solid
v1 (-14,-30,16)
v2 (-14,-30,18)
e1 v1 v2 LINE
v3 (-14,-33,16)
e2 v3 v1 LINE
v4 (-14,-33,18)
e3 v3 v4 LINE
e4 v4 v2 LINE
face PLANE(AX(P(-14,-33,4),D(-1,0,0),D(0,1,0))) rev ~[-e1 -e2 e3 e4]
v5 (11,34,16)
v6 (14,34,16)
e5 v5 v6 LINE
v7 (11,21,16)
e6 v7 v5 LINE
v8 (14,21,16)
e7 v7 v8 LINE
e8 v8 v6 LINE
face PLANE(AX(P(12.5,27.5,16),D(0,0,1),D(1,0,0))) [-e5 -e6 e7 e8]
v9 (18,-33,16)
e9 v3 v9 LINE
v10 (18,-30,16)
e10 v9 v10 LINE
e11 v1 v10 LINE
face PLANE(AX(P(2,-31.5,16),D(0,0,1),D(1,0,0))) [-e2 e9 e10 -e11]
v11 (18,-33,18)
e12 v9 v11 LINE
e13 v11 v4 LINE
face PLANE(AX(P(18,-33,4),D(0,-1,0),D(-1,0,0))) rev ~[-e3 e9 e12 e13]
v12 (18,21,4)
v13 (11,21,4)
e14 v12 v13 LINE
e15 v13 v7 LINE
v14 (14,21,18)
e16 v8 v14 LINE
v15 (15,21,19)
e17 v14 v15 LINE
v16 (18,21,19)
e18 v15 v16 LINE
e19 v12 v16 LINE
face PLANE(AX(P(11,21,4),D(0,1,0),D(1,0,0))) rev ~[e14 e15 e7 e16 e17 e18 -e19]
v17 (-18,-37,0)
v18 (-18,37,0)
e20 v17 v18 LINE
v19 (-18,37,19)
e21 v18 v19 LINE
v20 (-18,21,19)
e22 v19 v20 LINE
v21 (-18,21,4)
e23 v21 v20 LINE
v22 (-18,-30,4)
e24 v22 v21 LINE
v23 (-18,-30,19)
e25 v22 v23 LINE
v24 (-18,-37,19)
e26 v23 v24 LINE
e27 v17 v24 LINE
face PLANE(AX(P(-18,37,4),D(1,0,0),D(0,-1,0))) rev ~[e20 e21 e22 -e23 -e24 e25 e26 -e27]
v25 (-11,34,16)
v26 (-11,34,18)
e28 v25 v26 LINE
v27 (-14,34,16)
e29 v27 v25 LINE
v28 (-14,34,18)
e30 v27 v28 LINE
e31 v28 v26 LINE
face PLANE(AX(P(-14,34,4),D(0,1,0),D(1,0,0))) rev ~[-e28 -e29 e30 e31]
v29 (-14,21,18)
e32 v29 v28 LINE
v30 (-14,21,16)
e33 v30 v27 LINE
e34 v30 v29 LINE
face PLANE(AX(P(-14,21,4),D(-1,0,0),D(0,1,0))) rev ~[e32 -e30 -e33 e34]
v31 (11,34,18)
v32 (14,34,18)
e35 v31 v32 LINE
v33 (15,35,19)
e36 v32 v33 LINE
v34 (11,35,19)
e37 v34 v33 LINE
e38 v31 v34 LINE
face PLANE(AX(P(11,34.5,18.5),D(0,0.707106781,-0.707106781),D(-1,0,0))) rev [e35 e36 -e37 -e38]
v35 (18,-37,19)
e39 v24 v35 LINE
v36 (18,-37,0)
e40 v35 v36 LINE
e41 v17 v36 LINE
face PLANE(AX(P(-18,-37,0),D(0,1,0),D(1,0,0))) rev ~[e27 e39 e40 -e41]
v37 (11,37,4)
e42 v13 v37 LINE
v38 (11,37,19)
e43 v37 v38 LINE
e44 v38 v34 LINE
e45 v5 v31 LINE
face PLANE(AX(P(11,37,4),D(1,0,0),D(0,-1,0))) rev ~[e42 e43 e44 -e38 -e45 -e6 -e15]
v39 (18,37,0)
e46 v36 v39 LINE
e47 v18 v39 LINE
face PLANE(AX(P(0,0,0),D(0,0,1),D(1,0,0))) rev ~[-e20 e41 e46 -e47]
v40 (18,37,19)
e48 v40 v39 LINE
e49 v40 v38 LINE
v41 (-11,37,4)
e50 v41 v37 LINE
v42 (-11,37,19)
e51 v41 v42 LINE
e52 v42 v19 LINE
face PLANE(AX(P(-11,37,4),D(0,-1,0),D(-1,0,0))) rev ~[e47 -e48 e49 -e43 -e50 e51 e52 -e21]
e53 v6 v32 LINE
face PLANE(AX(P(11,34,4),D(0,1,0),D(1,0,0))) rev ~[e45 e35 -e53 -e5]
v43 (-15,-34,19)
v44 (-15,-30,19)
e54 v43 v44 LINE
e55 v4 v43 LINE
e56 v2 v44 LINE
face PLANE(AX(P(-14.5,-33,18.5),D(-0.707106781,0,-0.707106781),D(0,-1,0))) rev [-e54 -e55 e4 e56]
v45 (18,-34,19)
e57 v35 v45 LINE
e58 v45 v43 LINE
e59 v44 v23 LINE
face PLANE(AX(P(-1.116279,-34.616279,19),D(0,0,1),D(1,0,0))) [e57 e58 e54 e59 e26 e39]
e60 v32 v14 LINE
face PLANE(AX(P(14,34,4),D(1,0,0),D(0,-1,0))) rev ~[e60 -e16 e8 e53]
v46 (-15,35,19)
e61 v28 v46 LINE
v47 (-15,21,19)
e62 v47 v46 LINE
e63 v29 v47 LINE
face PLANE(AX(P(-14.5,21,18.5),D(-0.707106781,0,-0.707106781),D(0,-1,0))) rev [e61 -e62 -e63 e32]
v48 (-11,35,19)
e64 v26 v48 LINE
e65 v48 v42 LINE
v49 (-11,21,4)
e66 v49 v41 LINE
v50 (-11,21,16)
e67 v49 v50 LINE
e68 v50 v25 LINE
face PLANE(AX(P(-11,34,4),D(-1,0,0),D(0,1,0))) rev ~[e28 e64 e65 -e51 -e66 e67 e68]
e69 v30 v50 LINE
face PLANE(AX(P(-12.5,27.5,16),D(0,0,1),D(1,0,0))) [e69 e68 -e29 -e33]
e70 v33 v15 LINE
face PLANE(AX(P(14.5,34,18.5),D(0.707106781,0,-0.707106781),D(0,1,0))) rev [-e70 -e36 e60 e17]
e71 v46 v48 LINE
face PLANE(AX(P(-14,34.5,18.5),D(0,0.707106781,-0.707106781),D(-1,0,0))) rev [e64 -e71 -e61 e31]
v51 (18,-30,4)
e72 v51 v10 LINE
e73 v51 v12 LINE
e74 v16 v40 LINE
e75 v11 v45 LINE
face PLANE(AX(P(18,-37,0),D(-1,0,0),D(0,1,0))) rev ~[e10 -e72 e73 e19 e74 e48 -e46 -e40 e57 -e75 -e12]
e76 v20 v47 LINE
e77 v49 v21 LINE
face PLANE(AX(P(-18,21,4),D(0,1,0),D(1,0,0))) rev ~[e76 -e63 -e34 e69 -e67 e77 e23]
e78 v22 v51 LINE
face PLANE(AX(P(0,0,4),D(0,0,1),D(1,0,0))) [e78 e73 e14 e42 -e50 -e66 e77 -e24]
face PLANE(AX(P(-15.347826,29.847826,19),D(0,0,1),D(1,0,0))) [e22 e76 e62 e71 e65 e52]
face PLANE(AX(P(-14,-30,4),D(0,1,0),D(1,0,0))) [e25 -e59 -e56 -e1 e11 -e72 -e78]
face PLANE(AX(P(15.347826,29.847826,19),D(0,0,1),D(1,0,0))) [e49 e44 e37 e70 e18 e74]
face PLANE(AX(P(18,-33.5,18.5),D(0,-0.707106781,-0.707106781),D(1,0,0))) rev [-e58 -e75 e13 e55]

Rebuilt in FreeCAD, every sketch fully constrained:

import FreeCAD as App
import Part
import Sketcher

V = App.Vector
Q = App.Units.Quantity


def edges_at(feature, points):
    """Names of the edges that pass closest to the given points."""
    edges = feature.Shape.Edges
    near = lambda p: min(range(len(edges)), key=lambda i: edges[i].distToShape(Part.Vertex(*p))[0])
    return sorted({f"Edge{near(p) + 1}" for p in points})

doc = App.newDocument("Part")
params = doc.addObject("Spreadsheet::Sheet", "Params")
for row, (alias, value) in enumerate([
    ("sketch1_width", "36 mm"),
    ("sketch1_height", "74 mm"),
    ("pad1_length", "4 mm"),
    ("sketch2_width", "3 mm"),
    ("sketch2_width2", "32 mm"),
    ("sketch2_height", "13 mm"),
    ("pad2_length", "12 mm"),
    ("sketch3_width", "7 mm"),
    ("sketch3_width2", "4 mm"),
    ("sketch3_width3", "36 mm"),
    ("sketch3_height", "16 mm"),
    ("pad3_length", "15 mm"),
    ("chamfer_size", "1 mm"),
], start=1):
    params.set(f"A{row}", alias)
    params.set(f"B{row}", "=" + value)
    params.setAlias(f"B{row}", alias)

body = doc.addObject("PartDesign::Body", "Body")

# Sketch on XY plane
sketch1 = body.newObject("Sketcher::SketchObject", "Sketch")
sketch1.AttachmentSupport = (doc.getObject("XY_Plane"), [""])
sketch1.MapMode = "FlatFace"
sketch1.addGeometry(Part.LineSegment(V(-18, 37, 0), V(-18, -37, 0)), False)
sketch1.addGeometry(Part.LineSegment(V(-18, -37, 0), V(18, -37, 0)), False)
sketch1.addGeometry(Part.LineSegment(V(18, -37, 0), V(18, 37, 0)), False)
sketch1.addGeometry(Part.LineSegment(V(18, 37, 0), V(-18, 37, 0)), False)
sketch1.addConstraint(Sketcher.Constraint("Coincident", 0, 2, 1, 1))
sketch1.addConstraint(Sketcher.Constraint("Coincident", 1, 2, 2, 1))
sketch1.addConstraint(Sketcher.Constraint("Coincident", 2, 2, 3, 1))
sketch1.addConstraint(Sketcher.Constraint("Coincident", 3, 2, 0, 1))
sketch1.addConstraint(Sketcher.Constraint("Vertical", 0))
sketch1.addConstraint(Sketcher.Constraint("Horizontal", 1))
sketch1.addConstraint(Sketcher.Constraint("Vertical", 2))
sketch1.addConstraint(Sketcher.Constraint("Horizontal", 3))
sketch1.addConstraint(Sketcher.Constraint("Symmetric", 0, 2, 2, 2, -1, 1))
sketch1.addConstraint(Sketcher.Constraint("DistanceX", 1, 1, 1, 2, Q("36 mm")))
sketch1.addConstraint(Sketcher.Constraint("DistanceY", 0, 2, 0, 1, Q("74 mm")))
sketch1.setExpression("Constraints[9]", "Params.sketch1_width")
sketch1.setExpression("Constraints[10]", "Params.sketch1_height")
pad1 = body.newObject("PartDesign::Pad", "Pad")
pad1.Profile = sketch1
pad1.setExpression("Length", "Params.pad1_length")

# Sketch on XY plane
sketch2 = body.newObject("Sketcher::SketchObject", "Sketch001")
sketch2.AttachmentSupport = (doc.getObject("XY_Plane"), [""])
sketch2.MapMode = "FlatFace"
sketch2.AttachmentOffset = App.Placement(V(0, 0, 4), App.Rotation())
sketch2.addGeometry(Part.LineSegment(V(-14, 34, 0), V(-14, 21, 0)), False)
sketch2.addGeometry(Part.LineSegment(V(-14, 21, 0), V(-11, 21, 0)), False)
sketch2.addGeometry(Part.LineSegment(V(-11, 21, 0), V(-11, 34, 0)), False)
sketch2.addGeometry(Part.LineSegment(V(-11, 34, 0), V(-14, 34, 0)), False)
sketch2.addGeometry(Part.LineSegment(V(11, 34, 0), V(11, 21, 0)), False)
sketch2.addGeometry(Part.LineSegment(V(11, 21, 0), V(14, 21, 0)), False)
sketch2.addGeometry(Part.LineSegment(V(14, 21, 0), V(14, 34, 0)), False)
sketch2.addGeometry(Part.LineSegment(V(14, 34, 0), V(11, 34, 0)), False)
sketch2.addGeometry(Part.LineSegment(V(-14, -30, 0), V(-14, -33, 0)), False)
sketch2.addGeometry(Part.LineSegment(V(-14, -33, 0), V(18, -33, 0)), False)
sketch2.addGeometry(Part.LineSegment(V(18, -33, 0), V(18, -30, 0)), False)
sketch2.addGeometry(Part.LineSegment(V(18, -30, 0), V(-14, -30, 0)), False)
sketch2.addConstraint(Sketcher.Constraint("Coincident", 0, 2, 1, 1))
sketch2.addConstraint(Sketcher.Constraint("Coincident", 1, 2, 2, 1))
sketch2.addConstraint(Sketcher.Constraint("Coincident", 2, 2, 3, 1))
sketch2.addConstraint(Sketcher.Constraint("Coincident", 3, 2, 0, 1))
sketch2.addConstraint(Sketcher.Constraint("Coincident", 4, 2, 5, 1))
sketch2.addConstraint(Sketcher.Constraint("Coincident", 5, 2, 6, 1))
sketch2.addConstraint(Sketcher.Constraint("Coincident", 6, 2, 7, 1))
sketch2.addConstraint(Sketcher.Constraint("Coincident", 7, 2, 4, 1))
sketch2.addConstraint(Sketcher.Constraint("Coincident", 8, 2, 9, 1))
sketch2.addConstraint(Sketcher.Constraint("Coincident", 9, 2, 10, 1))
sketch2.addConstraint(Sketcher.Constraint("Coincident", 10, 2, 11, 1))
sketch2.addConstraint(Sketcher.Constraint("Coincident", 11, 2, 8, 1))
sketch2.addConstraint(Sketcher.Constraint("Vertical", 0))
sketch2.addConstraint(Sketcher.Constraint("Horizontal", 1))
sketch2.addConstraint(Sketcher.Constraint("Vertical", 2))
sketch2.addConstraint(Sketcher.Constraint("Horizontal", 3))
sketch2.addConstraint(Sketcher.Constraint("Vertical", 4))
sketch2.addConstraint(Sketcher.Constraint("Horizontal", 5))
sketch2.addConstraint(Sketcher.Constraint("Vertical", 6))
sketch2.addConstraint(Sketcher.Constraint("Horizontal", 7))
sketch2.addConstraint(Sketcher.Constraint("Vertical", 8))
sketch2.addConstraint(Sketcher.Constraint("Horizontal", 9))
sketch2.addConstraint(Sketcher.Constraint("Vertical", 10))
sketch2.addConstraint(Sketcher.Constraint("Horizontal", 11))
sketch2.addConstraint(Sketcher.Constraint("Symmetric", 1, 2, 4, 2, -2))
sketch2.addConstraint(Sketcher.Constraint("Symmetric", 3, 2, 6, 2, -2))
sketch2.addConstraint(Sketcher.Constraint("Vertical", 3, 2, 8, 2))
sketch2.addConstraint(Sketcher.Constraint("Equal", 7, 8))
sketch2.addConstraint(Sketcher.Constraint("DistanceX", 1, 1, 1, 2, Q("3 mm")))
sketch2.addConstraint(Sketcher.Constraint("DistanceX", 9, 1, 9, 2, Q("32 mm")))
sketch2.addConstraint(Sketcher.Constraint("DistanceY", 0, 2, 0, 1, Q("13 mm")))
sketch2.addConstraint(Sketcher.Constraint("DistanceX", 0, 2, -1, 1, Q("14 mm")))
sketch2.addConstraint(Sketcher.Constraint("DistanceY", -1, 1, 0, 2, Q("21 mm")))
sketch2.addConstraint(Sketcher.Constraint("DistanceY", 8, 2, -1, 1, Q("33 mm")))
sketch2.setExpression("Constraints[28]", "Params.sketch2_width")
sketch2.setExpression("Constraints[29]", "Params.sketch2_width2")
sketch2.setExpression("Constraints[30]", "Params.sketch2_height")
pad2 = body.newObject("PartDesign::Pad", "Pad001")
pad2.Profile = sketch2
pad2.setExpression("Length", "Params.pad2_length")

# Sketch on XY plane
sketch3 = body.newObject("Sketcher::SketchObject", "Sketch002")
sketch3.AttachmentSupport = (doc.getObject("XY_Plane"), [""])
sketch3.MapMode = "FlatFace"
sketch3.AttachmentOffset = App.Placement(V(0, 0, 4), App.Rotation())
sketch3.addGeometry(Part.LineSegment(V(-11, 37, 0), V(-18, 37, 0)), False)
sketch3.addGeometry(Part.LineSegment(V(-18, 37, 0), V(-18, 21, 0)), False)
sketch3.addGeometry(Part.LineSegment(V(-18, 21, 0), V(-14, 21, 0)), False)
sketch3.addGeometry(Part.LineSegment(V(-14, 21, 0), V(-14, 34, 0)), False)
sketch3.addGeometry(Part.LineSegment(V(-14, 34, 0), V(-11, 34, 0)), False)
sketch3.addGeometry(Part.LineSegment(V(-11, 34, 0), V(-11, 37, 0)), False)
sketch3.addGeometry(Part.LineSegment(V(18, 37, 0), V(11, 37, 0)), False)
sketch3.addGeometry(Part.LineSegment(V(11, 37, 0), V(11, 34, 0)), False)
sketch3.addGeometry(Part.LineSegment(V(11, 34, 0), V(14, 34, 0)), False)
sketch3.addGeometry(Part.LineSegment(V(14, 34, 0), V(14, 21, 0)), False)
sketch3.addGeometry(Part.LineSegment(V(14, 21, 0), V(18, 21, 0)), False)
sketch3.addGeometry(Part.LineSegment(V(18, 21, 0), V(18, 37, 0)), False)
sketch3.addGeometry(Part.LineSegment(V(-14, -30, 0), V(-18, -30, 0)), False)
sketch3.addGeometry(Part.LineSegment(V(-18, -30, 0), V(-18, -37, 0)), False)
sketch3.addGeometry(Part.LineSegment(V(-18, -37, 0), V(18, -37, 0)), False)
sketch3.addGeometry(Part.LineSegment(V(18, -37, 0), V(18, -33, 0)), False)
sketch3.addGeometry(Part.LineSegment(V(18, -33, 0), V(-14, -33, 0)), False)
sketch3.addGeometry(Part.LineSegment(V(-14, -33, 0), V(-14, -30, 0)), False)
sketch3.addConstraint(Sketcher.Constraint("Coincident", 0, 2, 1, 1))
sketch3.addConstraint(Sketcher.Constraint("Coincident", 1, 2, 2, 1))
sketch3.addConstraint(Sketcher.Constraint("Coincident", 2, 2, 3, 1))
sketch3.addConstraint(Sketcher.Constraint("Coincident", 3, 2, 4, 1))
sketch3.addConstraint(Sketcher.Constraint("Coincident", 4, 2, 5, 1))
sketch3.addConstraint(Sketcher.Constraint("Coincident", 5, 2, 0, 1))
sketch3.addConstraint(Sketcher.Constraint("Coincident", 6, 2, 7, 1))
sketch3.addConstraint(Sketcher.Constraint("Coincident", 7, 2, 8, 1))
sketch3.addConstraint(Sketcher.Constraint("Coincident", 8, 2, 9, 1))
sketch3.addConstraint(Sketcher.Constraint("Coincident", 9, 2, 10, 1))
sketch3.addConstraint(Sketcher.Constraint("Coincident", 10, 2, 11, 1))
sketch3.addConstraint(Sketcher.Constraint("Coincident", 11, 2, 6, 1))
sketch3.addConstraint(Sketcher.Constraint("Coincident", 12, 2, 13, 1))
sketch3.addConstraint(Sketcher.Constraint("Coincident", 13, 2, 14, 1))
sketch3.addConstraint(Sketcher.Constraint("Coincident", 14, 2, 15, 1))
sketch3.addConstraint(Sketcher.Constraint("Coincident", 15, 2, 16, 1))
sketch3.addConstraint(Sketcher.Constraint("Coincident", 16, 2, 17, 1))
sketch3.addConstraint(Sketcher.Constraint("Coincident", 17, 2, 12, 1))
sketch3.addConstraint(Sketcher.Constraint("Horizontal", 0))
sketch3.addConstraint(Sketcher.Constraint("Vertical", 1))
sketch3.addConstraint(Sketcher.Constraint("Horizontal", 2))
sketch3.addConstraint(Sketcher.Constraint("Vertical", 3))
sketch3.addConstraint(Sketcher.Constraint("Horizontal", 4))
sketch3.addConstraint(Sketcher.Constraint("Vertical", 5))
sketch3.addConstraint(Sketcher.Constraint("Horizontal", 6))
sketch3.addConstraint(Sketcher.Constraint("Vertical", 7))
sketch3.addConstraint(Sketcher.Constraint("Horizontal", 8))
sketch3.addConstraint(Sketcher.Constraint("Vertical", 9))
sketch3.addConstraint(Sketcher.Constraint("Horizontal", 10))
sketch3.addConstraint(Sketcher.Constraint("Vertical", 11))
sketch3.addConstraint(Sketcher.Constraint("Horizontal", 12))
sketch3.addConstraint(Sketcher.Constraint("Vertical", 13))
sketch3.addConstraint(Sketcher.Constraint("Horizontal", 14))
sketch3.addConstraint(Sketcher.Constraint("Vertical", 15))
sketch3.addConstraint(Sketcher.Constraint("Horizontal", 16))
sketch3.addConstraint(Sketcher.Constraint("Vertical", 17))
sketch3.addConstraint(Sketcher.Constraint("Symmetric", 11, 2, 13, 2, -1, 1))
sketch3.addConstraint(Sketcher.Constraint("Symmetric", 0, 2, 14, 2, -1, 1))
sketch3.addConstraint(Sketcher.Constraint("Symmetric", 4, 2, 7, 2, -2))
sketch3.addConstraint(Sketcher.Constraint("Symmetric", 2, 2, 9, 2, -2))
sketch3.addConstraint(Sketcher.Constraint("Vertical", 1, 2, 12, 2))
sketch3.addConstraint(Sketcher.Constraint("Vertical", 3, 2, 16, 2))
sketch3.addConstraint(Sketcher.Constraint("Equal", 8, 5))
sketch3.addConstraint(Sketcher.Constraint("Equal", 6, 13))
sketch3.addConstraint(Sketcher.Constraint("Equal", 12, 15))
sketch3.addConstraint(Sketcher.Constraint("DistanceX", 0, 2, 0, 1, Q("7 mm")))
sketch3.addConstraint(Sketcher.Constraint("DistanceX", 2, 1, 2, 2, Q("4 mm")))
sketch3.addConstraint(Sketcher.Constraint("DistanceX", 14, 1, 14, 2, Q("36 mm")))
sketch3.addConstraint(Sketcher.Constraint("DistanceY", 1, 2, 1, 1, Q("16 mm")))
sketch3.addConstraint(Sketcher.Constraint("DistanceY", -1, 1, 0, 2, Q("37 mm")))
sketch3.setExpression("Constraints[45]", "Params.sketch3_width")
sketch3.setExpression("Constraints[46]", "Params.sketch3_width2")
sketch3.setExpression("Constraints[47]", "Params.sketch3_width3")
sketch3.setExpression("Constraints[48]", "Params.sketch3_height")
pad3 = body.newObject("PartDesign::Pad", "Pad002")
pad3.Profile = sketch3
pad3.setExpression("Length", "Params.pad3_length")
doc.recompute()

chamfer = body.newObject("PartDesign::Chamfer", "Chamfer")
chamfer.Base = (pad3, edges_at(pad3, [
    (-14, 27.5, 19),
    (-12.5, 34, 19),
    (12.5, 34, 19),
    (14, 27.5, 19),
    (2, -33, 19),
    (-14, -31.5, 19),
]))
chamfer.setExpression("Size", "Params.chamfer_size")

doc.recompute()
